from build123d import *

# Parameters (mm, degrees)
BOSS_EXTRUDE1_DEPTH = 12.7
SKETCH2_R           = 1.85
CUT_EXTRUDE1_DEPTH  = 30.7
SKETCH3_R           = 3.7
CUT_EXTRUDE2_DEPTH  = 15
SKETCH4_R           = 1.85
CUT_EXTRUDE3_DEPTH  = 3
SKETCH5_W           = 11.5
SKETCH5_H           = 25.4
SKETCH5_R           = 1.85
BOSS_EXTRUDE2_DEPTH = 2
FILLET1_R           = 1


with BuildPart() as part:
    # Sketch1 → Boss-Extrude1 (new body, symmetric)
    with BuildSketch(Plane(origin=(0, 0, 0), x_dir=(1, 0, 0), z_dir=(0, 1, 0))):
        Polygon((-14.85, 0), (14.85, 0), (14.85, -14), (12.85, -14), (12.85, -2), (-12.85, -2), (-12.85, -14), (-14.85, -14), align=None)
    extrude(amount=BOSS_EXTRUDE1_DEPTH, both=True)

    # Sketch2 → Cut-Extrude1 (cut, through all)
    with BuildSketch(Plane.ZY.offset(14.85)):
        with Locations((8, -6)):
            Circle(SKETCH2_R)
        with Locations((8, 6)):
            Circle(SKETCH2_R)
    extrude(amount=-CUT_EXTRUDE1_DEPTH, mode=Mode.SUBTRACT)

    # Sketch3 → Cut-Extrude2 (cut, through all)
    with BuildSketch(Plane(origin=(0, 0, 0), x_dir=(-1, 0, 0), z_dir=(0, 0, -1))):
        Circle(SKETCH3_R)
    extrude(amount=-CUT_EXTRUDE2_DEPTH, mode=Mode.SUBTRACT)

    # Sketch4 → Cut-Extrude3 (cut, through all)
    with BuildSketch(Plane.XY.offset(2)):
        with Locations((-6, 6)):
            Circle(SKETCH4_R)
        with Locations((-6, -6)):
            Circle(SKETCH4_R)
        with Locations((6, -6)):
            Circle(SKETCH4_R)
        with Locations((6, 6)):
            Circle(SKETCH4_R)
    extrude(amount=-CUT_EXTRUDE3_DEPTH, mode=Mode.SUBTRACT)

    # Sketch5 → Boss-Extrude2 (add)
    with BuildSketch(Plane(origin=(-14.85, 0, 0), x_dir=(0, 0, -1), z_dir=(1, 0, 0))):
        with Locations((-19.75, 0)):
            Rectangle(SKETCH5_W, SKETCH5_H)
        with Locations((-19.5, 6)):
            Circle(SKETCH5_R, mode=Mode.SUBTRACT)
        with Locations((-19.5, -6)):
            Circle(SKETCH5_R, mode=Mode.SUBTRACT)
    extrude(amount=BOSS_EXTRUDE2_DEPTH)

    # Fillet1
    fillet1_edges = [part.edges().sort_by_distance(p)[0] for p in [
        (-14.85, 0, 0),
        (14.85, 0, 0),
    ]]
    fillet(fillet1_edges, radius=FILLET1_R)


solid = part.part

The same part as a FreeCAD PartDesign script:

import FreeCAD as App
import Part
import Sketcher
from FreeCAD import Vector


def edges_at(feature, points):
    """Names of the edges that pass closest to the given points."""
    edges = feature.Shape.Edges
    near = lambda p: min(range(len(edges)), key=lambda i: edges[i].distToShape(Part.Vertex(*p))[0])
    return sorted({f"Edge{near(p) + 1}" for p in points})

doc = App.newDocument("Part")
body = doc.addObject("PartDesign::Body", "Body")

# Sketch on XZ plane
sketch1 = body.newObject("Sketcher::SketchObject", "Sketch")
sketch1.AttachmentSupport = (doc.getObject("XZ_Plane"), [""])
sketch1.MapMode = "FlatFace"
sketch1.addGeometry([
    Part.LineSegment(Vector(14.85, 0, 0), Vector(-14.85, 0, 0)),  # 0
    Part.LineSegment(Vector(-14.85, 0, 0), Vector(-14.85, 14, 0)),  # 1
    Part.LineSegment(Vector(-14.85, 14, 0), Vector(-12.85, 14, 0)),  # 2
    Part.LineSegment(Vector(-12.85, 14, 0), Vector(-12.85, 2, 0)),  # 3
    Part.LineSegment(Vector(-12.85, 2, 0), Vector(12.85, 2, 0)),  # 4
    Part.LineSegment(Vector(12.85, 2, 0), Vector(12.85, 14, 0)),  # 5
    Part.LineSegment(Vector(12.85, 14, 0), Vector(14.85, 14, 0)),  # 6
    Part.LineSegment(Vector(14.85, 14, 0), Vector(14.85, 0, 0)),  # 7
], False)
sketch1.addConstraint([
    Sketcher.Constraint("Coincident", 0, 2, 1, 1),
    Sketcher.Constraint("Coincident", 1, 2, 2, 1),
    Sketcher.Constraint("Coincident", 2, 2, 3, 1),
    Sketcher.Constraint("Coincident", 3, 2, 4, 1),
    Sketcher.Constraint("Coincident", 4, 2, 5, 1),
    Sketcher.Constraint("Coincident", 5, 2, 6, 1),
    Sketcher.Constraint("Coincident", 6, 2, 7, 1),
    Sketcher.Constraint("Coincident", 7, 2, 0, 1),
    Sketcher.Constraint("Horizontal", 0),
    Sketcher.Constraint("Vertical", 1),
    Sketcher.Constraint("Horizontal", 2),
    Sketcher.Constraint("Vertical", 3),
    Sketcher.Constraint("Horizontal", 4),
    Sketcher.Constraint("Vertical", 5),
    Sketcher.Constraint("Horizontal", 6),
    Sketcher.Constraint("Vertical", 7),
    Sketcher.Constraint("Symmetric", 0, 2, 7, 2, -1, 1),
    Sketcher.Constraint("Symmetric", 2, 2, 5, 2, -2),
    Sketcher.Constraint("DistanceX", 2, 1, 2, 2, 2.0),
    Sketcher.Constraint("DistanceY", 1, 1, 1, 2, 14.0),
    Sketcher.Constraint("DistanceY", 3, 2, 3, 1, 12.0),
    Sketcher.Constraint("DistanceX", 0, 2, 0, 1, 29.7),
])
pad1 = body.newObject("PartDesign::Pad", "Pad")
pad1.Profile = sketch1
pad1.Length = 25.4
pad1.Midplane = True

# Sketch on YZ plane
sketch2 = body.newObject("Sketcher::SketchObject", "Sketch001")
sketch2.AttachmentSupport = (doc.getObject("YZ_Plane"), [""])
sketch2.MapMode = "FlatFace"
sketch2.AttachmentOffset = App.Placement(Vector(0, 0, -14.85), App.Rotation())
sketch2.addGeometry([
    Part.Circle(Vector(-6, 8, 0), Vector(0, 0, 1), 1.85),
    Part.Circle(Vector(6, 8, 0), Vector(0, 0, 1), 1.85),
], False)
sketch2.addConstraint([
    Sketcher.Constraint("Equal", 0, 1),
    Sketcher.Constraint("Symmetric", 0, 3, 1, 3, -2),
    Sketcher.Constraint("Diameter", 0, 3.7),
    Sketcher.Constraint("DistanceX", 0, 3, -1, 1, 6.0),
    Sketcher.Constraint("DistanceY", -1, 1, 0, 3, 8.0),
])
pocket1 = body.newObject("PartDesign::Pocket", "Pocket")
pocket1.Profile = sketch2
pocket1.Type = "ThroughAll"
pocket1.Reversed = True

# Sketch on XY plane
sketch3 = body.newObject("Sketcher::SketchObject", "Sketch002")
sketch3.AttachmentSupport = (doc.getObject("XY_Plane"), [""])
sketch3.MapMode = "FlatFace"
sketch3.addGeometry(Part.Circle(Vector(0, 0, 0), Vector(0, 0, 1), 3.7), False)
sketch3.addConstraint([
    Sketcher.Constraint("Coincident", 0, 3, -1, 1),
    Sketcher.Constraint("Diameter", 0, 7.4),
])
pocket2 = body.newObject("PartDesign::Pocket", "Pocket001")
pocket2.Profile = sketch3
pocket2.Type = "ThroughAll"
pocket2.Reversed = True

# Sketch on XY plane
sketch4 = body.newObject("Sketcher::SketchObject", "Sketch003")
sketch4.AttachmentSupport = (doc.getObject("XY_Plane"), [""])
sketch4.MapMode = "FlatFace"
sketch4.AttachmentOffset = App.Placement(Vector(0, 0, 2), App.Rotation())
sketch4.addGeometry([
    Part.Circle(Vector(-6, 6, 0), Vector(0, 0, 1), 1.85),
    Part.Circle(Vector(-6, -6, 0), Vector(0, 0, 1), 1.85),
    Part.Circle(Vector(6, -6, 0), Vector(0, 0, 1), 1.85),
    Part.Circle(Vector(6, 6, 0), Vector(0, 0, 1), 1.85),
], False)
sketch4.addConstraint([
    Sketcher.Constraint("Equal", 0, 1),
    Sketcher.Constraint("Equal", 1, 2),
    Sketcher.Constraint("Equal", 2, 3),
    Sketcher.Constraint("Symmetric", 0, 3, 2, 3, -1, 1),
    Sketcher.Constraint("Symmetric", 1, 3, 3, 3, -1, 1),
    Sketcher.Constraint("Symmetric", 1, 3, 2, 3, -2),
    Sketcher.Constraint("Diameter", 0, 3.7),
    Sketcher.Constraint("DistanceX", 0, 3, -1, 1, 6.0),
    Sketcher.Constraint("DistanceY", -1, 1, 0, 3, 6.0),
])
pocket3 = body.newObject("PartDesign::Pocket", "Pocket002")
pocket3.Profile = sketch4
pocket3.Type = "ThroughAll"

# Sketch on YZ plane
sketch5 = body.newObject("Sketcher::SketchObject", "Sketch004")
sketch5.AttachmentSupport = (doc.getObject("YZ_Plane"), [""])
sketch5.MapMode = "FlatFace"
sketch5.AttachmentOffset = App.Placement(Vector(0, 0, -14.85), App.Rotation())
sketch5.addGeometry([
    Part.LineSegment(Vector(12.7, 25.5, 0), Vector(-12.7, 25.5, 0)),  # 0
    Part.LineSegment(Vector(-12.7, 25.5, 0), Vector(-12.7, 14, 0)),  # 1
    Part.LineSegment(Vector(-12.7, 14, 0), Vector(12.7, 14, 0)),  # 2
    Part.LineSegment(Vector(12.7, 14, 0), Vector(12.7, 25.5, 0)),  # 3
    Part.Circle(Vector(-6, 19.5, 0), Vector(0, 0, 1), 1.85),  # 4
    Part.Circle(Vector(6, 19.5, 0), Vector(0, 0, 1), 1.85),  # 5
], False)
sketch5.addConstraint([
    Sketcher.Constraint("Coincident", 0, 2, 1, 1),
    Sketcher.Constraint("Coincident", 1, 2, 2, 1),
    Sketcher.Constraint("Coincident", 2, 2, 3, 1),
    Sketcher.Constraint("Coincident", 3, 2, 0, 1),
    Sketcher.Constraint("Horizontal", 0),
    Sketcher.Constraint("Vertical", 1),
    Sketcher.Constraint("Horizontal", 2),
    Sketcher.Constraint("Vertical", 3),
    Sketcher.Constraint("Equal", 4, 5),
    Sketcher.Constraint("Symmetric", 4, 3, 5, 3, -2),
    Sketcher.Constraint("Diameter", 4, 3.7),
    Sketcher.Constraint("DistanceX", 0, 2, 0, 1, 25.4),
    Sketcher.Constraint("DistanceY", 1, 2, 1, 1, 11.5),
    Sketcher.Constraint("DistanceX", 4, 3, -1, 1, 6.0),
    Sketcher.Constraint("DistanceY", -1, 1, 1, 2, 14.0),
    Sketcher.Constraint("DistanceY", 4, 3, 0, 2, 6.0),
    Sketcher.Constraint("DistanceX", 0, 2, -1, 1, 12.7),
])
pad2 = body.newObject("PartDesign::Pad", "Pad001")
pad2.Profile = sketch5
pad2.Length = 2
doc.recompute()

fillet = body.newObject("PartDesign::Fillet", "Fillet")
fillet.Base = (pad2, edges_at(pad2, [(-14.85, 0, 0), (14.85, 0, 0)]))
fillet.Radius = 1

doc.recompute()
